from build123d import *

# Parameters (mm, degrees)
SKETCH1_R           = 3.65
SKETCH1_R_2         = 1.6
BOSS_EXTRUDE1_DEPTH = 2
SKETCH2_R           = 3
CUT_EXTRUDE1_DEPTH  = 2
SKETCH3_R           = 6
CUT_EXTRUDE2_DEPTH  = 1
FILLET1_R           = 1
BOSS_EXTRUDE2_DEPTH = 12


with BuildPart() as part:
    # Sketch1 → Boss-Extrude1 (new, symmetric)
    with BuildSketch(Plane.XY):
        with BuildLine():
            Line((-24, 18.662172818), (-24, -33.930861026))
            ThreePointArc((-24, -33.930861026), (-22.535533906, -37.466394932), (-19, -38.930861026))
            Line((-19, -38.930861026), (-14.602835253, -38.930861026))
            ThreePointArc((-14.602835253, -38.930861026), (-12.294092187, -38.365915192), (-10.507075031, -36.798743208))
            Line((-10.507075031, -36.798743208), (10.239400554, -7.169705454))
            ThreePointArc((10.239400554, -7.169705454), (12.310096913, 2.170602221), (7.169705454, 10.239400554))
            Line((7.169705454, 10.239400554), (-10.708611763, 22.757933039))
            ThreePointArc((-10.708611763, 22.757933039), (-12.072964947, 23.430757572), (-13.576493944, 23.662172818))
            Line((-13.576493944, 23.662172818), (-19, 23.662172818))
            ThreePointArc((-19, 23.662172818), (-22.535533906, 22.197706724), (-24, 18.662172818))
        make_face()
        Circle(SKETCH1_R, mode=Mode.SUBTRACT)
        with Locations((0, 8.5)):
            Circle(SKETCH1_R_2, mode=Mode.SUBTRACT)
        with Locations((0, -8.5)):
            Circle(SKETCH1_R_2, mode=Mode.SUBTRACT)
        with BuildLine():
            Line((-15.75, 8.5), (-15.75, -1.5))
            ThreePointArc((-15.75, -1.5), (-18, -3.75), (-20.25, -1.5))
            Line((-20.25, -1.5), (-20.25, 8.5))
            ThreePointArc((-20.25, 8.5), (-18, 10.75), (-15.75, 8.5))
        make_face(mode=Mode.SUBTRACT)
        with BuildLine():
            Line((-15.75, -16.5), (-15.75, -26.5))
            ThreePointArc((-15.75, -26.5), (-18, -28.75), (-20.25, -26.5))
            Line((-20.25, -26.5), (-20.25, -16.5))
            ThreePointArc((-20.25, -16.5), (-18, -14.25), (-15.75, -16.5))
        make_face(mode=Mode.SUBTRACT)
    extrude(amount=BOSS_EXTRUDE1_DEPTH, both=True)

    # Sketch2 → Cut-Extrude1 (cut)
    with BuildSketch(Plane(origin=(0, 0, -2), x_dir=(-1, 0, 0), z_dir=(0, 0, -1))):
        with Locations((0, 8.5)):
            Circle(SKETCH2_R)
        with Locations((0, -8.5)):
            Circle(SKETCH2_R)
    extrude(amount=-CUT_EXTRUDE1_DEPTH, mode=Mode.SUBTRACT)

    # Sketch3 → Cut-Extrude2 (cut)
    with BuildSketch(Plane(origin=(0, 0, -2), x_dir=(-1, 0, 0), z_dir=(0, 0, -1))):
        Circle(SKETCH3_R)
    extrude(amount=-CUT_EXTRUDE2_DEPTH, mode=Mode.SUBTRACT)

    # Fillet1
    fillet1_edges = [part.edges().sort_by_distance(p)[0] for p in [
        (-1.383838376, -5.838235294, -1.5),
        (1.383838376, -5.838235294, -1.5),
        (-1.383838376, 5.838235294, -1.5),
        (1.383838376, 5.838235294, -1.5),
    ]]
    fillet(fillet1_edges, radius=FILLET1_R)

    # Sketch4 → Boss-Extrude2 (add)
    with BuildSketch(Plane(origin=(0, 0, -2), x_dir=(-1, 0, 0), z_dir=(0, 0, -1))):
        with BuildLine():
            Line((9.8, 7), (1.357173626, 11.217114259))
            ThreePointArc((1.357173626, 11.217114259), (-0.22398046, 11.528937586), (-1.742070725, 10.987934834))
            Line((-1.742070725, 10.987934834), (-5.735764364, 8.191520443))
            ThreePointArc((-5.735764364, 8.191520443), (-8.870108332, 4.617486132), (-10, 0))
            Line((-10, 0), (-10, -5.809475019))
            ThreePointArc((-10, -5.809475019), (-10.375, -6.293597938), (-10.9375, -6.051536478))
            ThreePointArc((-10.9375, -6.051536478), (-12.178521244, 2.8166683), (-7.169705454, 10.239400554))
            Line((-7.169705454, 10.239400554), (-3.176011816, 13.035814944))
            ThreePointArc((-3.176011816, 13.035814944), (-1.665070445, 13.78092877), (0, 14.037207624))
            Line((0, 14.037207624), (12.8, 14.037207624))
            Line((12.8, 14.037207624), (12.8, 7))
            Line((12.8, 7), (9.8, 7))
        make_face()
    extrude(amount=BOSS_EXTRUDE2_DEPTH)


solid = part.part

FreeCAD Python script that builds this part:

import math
import FreeCAD as App
import Part
import Sketcher
from FreeCAD import Vector
Q = App.Units.Quantity


def edges_at(feature, points):
    """Names of the edges that pass closest to the given points."""
    edges = feature.Shape.Edges
    near = lambda p: min(range(len(edges)), key=lambda i: edges[i].distToShape(Part.Vertex(*p))[0])
    return sorted({f"Edge{near(p) + 1}" for p in points})

doc = App.newDocument("Part")
body = doc.addObject("PartDesign::Body", "Body")

sketch1 = doc.addObject("Sketcher::SketchObject", "Sketch")
body.addObject(sketch1)
sketch1.AttachmentSupport = (doc.XY_Plane, [""])
sketch1.MapMode = "FlatFace"
sketch1.addGeometry([
    Part.LineSegment(Vector(-24, 18.7, 0), Vector(-24, -33.9, 0)),
    Part.ArcOfCircle(Part.Circle(Vector(-19, -33.9, 0), Vector(0, 0, 1), 5), math.radians(180), math.radians(270)),
    Part.LineSegment(Vector(-19, -38.9, 0), Vector(-14.6, -38.9, 0)),
    Part.ArcOfCircle(Part.Circle(Vector(-14.6, -33.9, 0), Vector(0, 0, 1), 5), math.radians(-90), math.radians(-35)),
    Part.LineSegment(Vector(-10.5, -36.8, 0), Vector(10.2, -7.2, 0)),
    Part.ArcOfCircle(Part.Circle(Vector(0, 0, 0), Vector(0, 0, 1), 12.5), math.radians(-35), math.radians(55)),
    Part.LineSegment(Vector(7.2, 10.2, 0), Vector(-10.7, 22.8, 0)),
    Part.ArcOfCircle(Part.Circle(Vector(-13.6, 18.7, 0), Vector(0, 0, 1), 5), math.radians(55), math.radians(90)),
    Part.LineSegment(Vector(-13.6, 23.7, 0), Vector(-19, 23.7, 0)),
    Part.ArcOfCircle(Part.Circle(Vector(-19, 18.7, 0), Vector(0, 0, 1), 5), math.radians(90), math.radians(180)),
    Part.ArcOfCircle(Part.Circle(Vector(-18, -16.5, 0), Vector(0, 0, 1), 2.2), math.radians(0), math.radians(180)),
    Part.LineSegment(Vector(-15.8, -16.5, 0), Vector(-15.8, -26.5, 0)),
    Part.ArcOfCircle(Part.Circle(Vector(-18, -26.5, 0), Vector(0, 0, 1), 2.2), math.radians(180), math.radians(360)),
    Part.LineSegment(Vector(-20.2, -26.5, 0), Vector(-20.2, -16.5, 0)),
    Part.ArcOfCircle(Part.Circle(Vector(-18, 8.5, 0), Vector(0, 0, 1), 2.2), math.radians(0), math.radians(180)),
    Part.LineSegment(Vector(-15.8, 8.5, 0), Vector(-15.8, -1.5, 0)),
    Part.ArcOfCircle(Part.Circle(Vector(-18, -1.5, 0), Vector(0, 0, 1), 2.2), math.radians(180), math.radians(360)),
    Part.LineSegment(Vector(-20.2, -1.5, 0), Vector(-20.2, 8.5, 0)),
    Part.Circle(Vector(0, -8.5, 0), Vector(0, 0, 1), 1.6),
    Part.Circle(Vector(0, 0, 0), Vector(0, 0, 1), 3.6),
    Part.Circle(Vector(0, 8.5, 0), Vector(0, 0, 1), 1.6),
], False)
sketch1.addConstraint([
    Sketcher.Constraint("Tangent", 0, 2, 1, 1),
    Sketcher.Constraint("Tangent", 1, 2, 2, 1),
    Sketcher.Constraint("Tangent", 2, 2, 3, 1),
    Sketcher.Constraint("Tangent", 3, 2, 4, 1),
    Sketcher.Constraint("Tangent", 4, 2, 5, 1),
    Sketcher.Constraint("Tangent", 5, 2, 6, 1),
    Sketcher.Constraint("Tangent", 6, 2, 7, 1),
    Sketcher.Constraint("Tangent", 7, 2, 8, 1),
    Sketcher.Constraint("Tangent", 8, 2, 9, 1),
    Sketcher.Constraint("Tangent", 9, 2, 0, 1),
    Sketcher.Constraint("Tangent", 10, 1, 11, 1),
    Sketcher.Constraint("Tangent", 11, 2, 12, 2),
    Sketcher.Constraint("Tangent", 12, 1, 13, 1),
    Sketcher.Constraint("Tangent", 13, 2, 10, 2),
    Sketcher.Constraint("Tangent", 14, 1, 15, 1),
    Sketcher.Constraint("Tangent", 15, 2, 16, 2),
    Sketcher.Constraint("Tangent", 16, 1, 17, 1),
    Sketcher.Constraint("Tangent", 17, 2, 14, 2),
    Sketcher.Constraint("Vertical", 0),
    Sketcher.Constraint("Horizontal", 2),
    Sketcher.Constraint("Horizontal", 8),
    Sketcher.Constraint("Vertical", 11),
    Sketcher.Constraint("Vertical", 13),
    Sketcher.Constraint("Vertical", 15),
    Sketcher.Constraint("Vertical", 17),
    Sketcher.Constraint("Coincident", 5, 3, -1, 1),
    Sketcher.Constraint("Coincident", 19, 3, -1, 1),
    Sketcher.Constraint("Equal", 1, 3),
    Sketcher.Constraint("Equal", 3, 7),
    Sketcher.Constraint("Equal", 7, 9),
    Sketcher.Constraint("Equal", 12, 14),
    Sketcher.Constraint("Equal", 18, 20),
    Sketcher.Constraint("Symmetric", 18, 3, 20, 3, -1, 1),
    Sketcher.Constraint("PointOnObject", 18, 3, -2),
    Sketcher.Constraint("Perpendicular", 4, 6),
    Sketcher.Constraint("Horizontal", 14, 3, 20, 3),
    Sketcher.Constraint("Vertical", 12, 3, 14, 3),
    Sketcher.Constraint("Equal", 13, 15),
    Sketcher.Constraint("Radius", 1, Q("5 mm")),
    Sketcher.Constraint("Diameter", 18, Q("3.2 mm")),
    Sketcher.Constraint("Diameter", 19, Q("7.3 mm")),
    Sketcher.Constraint("Radius", 5, Q("12.5 mm")),
    Sketcher.Constraint("DistanceY", 11, 2, 11, 1, Q("10 mm")),
    Sketcher.Constraint("Angle", 4, Q("55 deg")),
    Sketcher.Constraint("Radius", 10, Q("2.25 mm")),
    Sketcher.Constraint("DistanceX", 1, 3, -1, 1, Q("19 mm")),
    Sketcher.Constraint("DistanceX", 10, 3, -1, 1, Q("18 mm")),
    Sketcher.Constraint("DistanceY", 10, 3, 14, 3, Q("25 mm")),
    Sketcher.Constraint("DistanceY", 18, 3, 16, 3, Q("7 mm")),
    Sketcher.Constraint("DistanceX", 2, 1, 2, 2, Q("4.397165 mm")),
    Sketcher.Constraint("DistanceX", 8, 2, 8, 1, Q("5.423506 mm")),
])
pad1 = doc.addObject("PartDesign::Pad", "Pad")
body.addObject(pad1)
pad1.Profile = sketch1
pad1.Length = 4
pad1.Midplane = True

sketch2 = doc.addObject("Sketcher::SketchObject", "Sketch001")
body.addObject(sketch2)
sketch2.AttachmentSupport = (doc.XY_Plane, [""])
sketch2.MapMode = "FlatFace"
sketch2.AttachmentOffset = App.Placement(Vector(0, 0, -2), App.Rotation())
sketch2.addGeometry([
    Part.Circle(Vector(0, 8.5, 0), Vector(0, 0, 1), 3),
    Part.Circle(Vector(0, -8.5, 0), Vector(0, 0, 1), 3),
], False)
sketch2.addConstraint([
    Sketcher.Constraint("Equal", 0, 1),
    Sketcher.Constraint("Symmetric", 0, 3, 1, 3, -1, 1),
    Sketcher.Constraint("PointOnObject", 0, 3, -2),
    Sketcher.Constraint("Diameter", 0, Q("6 mm")),
    Sketcher.Constraint("DistanceY", 1, 3, 0, 3, Q("17 mm")),
])
pocket1 = doc.addObject("PartDesign::Pocket", "Pocket")
body.addObject(pocket1)
pocket1.Profile = sketch2
pocket1.Length = 2
pocket1.Reversed = True

sketch3 = doc.addObject("Sketcher::SketchObject", "Sketch002")
body.addObject(sketch3)
sketch3.AttachmentSupport = (doc.XY_Plane, [""])
sketch3.MapMode = "FlatFace"
sketch3.AttachmentOffset = App.Placement(Vector(0, 0, -2), App.Rotation())
sketch3.addGeometry(Part.Circle(Vector(0, 0, 0), Vector(0, 0, 1), 6), False)
sketch3.addConstraint([
    Sketcher.Constraint("Coincident", 0, 3, -1, 1),
    Sketcher.Constraint("Diameter", 0, Q("12 mm")),
])
pocket2 = doc.addObject("PartDesign::Pocket", "Pocket001")
body.addObject(pocket2)
pocket2.Profile = sketch3
pocket2.Length = 1
pocket2.Reversed = True
doc.recompute()

fillet = doc.addObject("PartDesign::Fillet", "Fillet")
body.addObject(fillet)
fillet.Base = (pocket2, edges_at(pocket2, [
    (-1.384, -5.838, -1.5),
    (1.384, -5.838, -1.5),
    (-1.384, 5.838, -1.5),
    (1.384, 5.838, -1.5),
]))
fillet.Radius = 1

sketch4 = doc.addObject("Sketcher::SketchObject", "Sketch003")
body.addObject(sketch4)
sketch4.AttachmentSupport = (doc.XY_Plane, [""])
sketch4.MapMode = "FlatFace"
sketch4.AttachmentOffset = App.Placement(Vector(0, 0, -2), App.Rotation())
sketch4.addGeometry([
    Part.LineSegment(Vector(-1.4, 11.2, 0), Vector(-9.8, 7, 0)),
    Part.LineSegment(Vector(-9.8, 7, 0), Vector(-12.8, 7, 0)),
    Part.LineSegment(Vector(-12.8, 7, 0), Vector(-12.8, 14, 0)),
    Part.LineSegment(Vector(-12.8, 14, 0), Vector(0, 14, 0)),
    Part.ArcOfCircle(Part.Circle(Vector(0, 8.5, 0), Vector(0, 0, 1), 5.5), math.radians(55), math.radians(90)),
    Part.LineSegment(Vector(3.2, 13, 0), Vector(7.2, 10.2, 0)),
    Part.ArcOfCircle(Part.Circle(Vector(0, 0, 0), Vector(0, 0, 1), 12.5), math.radians(-29), math.radians(55)),
    Part.ArcOfCircle(Part.Circle(Vector(10.5, -5.8, 0), Vector(0, 0, 1), 0.5), math.radians(180), math.radians(331)),
    Part.LineSegment(Vector(10, -5.8, 0), Vector(10, 0, 0)),
    Part.ArcOfCircle(Part.Circle(Vector(0, 0, 0), Vector(0, 0, 1), 10), math.radians(0), math.radians(55)),
    Part.LineSegment(Vector(5.7, 8.2, 0), Vector(1.7, 11, 0)),
    Part.ArcOfCircle(Part.Circle(Vector(0, 8.5, 0), Vector(0, 0, 1), 3), math.radians(55), math.radians(117)),
], False)
sketch4.addConstraint([
    Sketcher.Constraint("Coincident", 0, 2, 1, 1),
    Sketcher.Constraint("Coincident", 1, 2, 2, 1),
    Sketcher.Constraint("Coincident", 2, 2, 3, 1),
    Sketcher.Constraint("Tangent", 3, 2, 4, 2),
    Sketcher.Constraint("Tangent", 4, 1, 5, 1),
    Sketcher.Constraint("Tangent", 5, 2, 6, 2),
    Sketcher.Constraint("Tangent", 6, 1, 7, 2),
    Sketcher.Constraint("Tangent", 7, 1, 8, 1),
    Sketcher.Constraint("Tangent", 8, 2, 9, 1),
    Sketcher.Constraint("Tangent", 9, 2, 10, 1),
    Sketcher.Constraint("Tangent", 10, 2, 11, 1),
    Sketcher.Constraint("Tangent", 11, 2, 0, 1),
    Sketcher.Constraint("Horizontal", 1),
    Sketcher.Constraint("Vertical", 2),
    Sketcher.Constraint("Horizontal", 3),
    Sketcher.Constraint("Vertical", 8),
    Sketcher.Constraint("Coincident", 6, 3, -1, 1),
    Sketcher.Constraint("Coincident", 9, 3, -1, 1),
    Sketcher.Constraint("Coincident", 11, 3, 4, 3),
    Sketcher.Constraint("PointOnObject", 4, 3, -2),
    Sketcher.Constraint("Parallel", 5, 10),
    Sketcher.Constraint("Radius", 9, Q("10 mm")),
    Sketcher.Constraint("Radius", 6, Q("12.5 mm")),
    Sketcher.Constraint("Radius", 7, Q("0.5 mm")),
    Sketcher.Constraint("DistanceX", 1, 2, 1, 1, Q("3 mm")),
    Sketcher.Constraint("Angle", 5, Q("-35 deg")),
    Sketcher.Constraint("DistanceX", 3, 1, 3, 2, Q("12.8 mm")),
    Sketcher.Constraint("DistanceY", -1, 1, 0, 2, Q("7 mm")),
    Sketcher.Constraint("DistanceY", -1, 1, 4, 3, Q("8.5 mm")),
])
pad2 = doc.addObject("PartDesign::Pad", "Pad001")
body.addObject(pad2)
pad2.Profile = sketch4
pad2.Length = 12
pad2.Reversed = True

doc.recompute()
